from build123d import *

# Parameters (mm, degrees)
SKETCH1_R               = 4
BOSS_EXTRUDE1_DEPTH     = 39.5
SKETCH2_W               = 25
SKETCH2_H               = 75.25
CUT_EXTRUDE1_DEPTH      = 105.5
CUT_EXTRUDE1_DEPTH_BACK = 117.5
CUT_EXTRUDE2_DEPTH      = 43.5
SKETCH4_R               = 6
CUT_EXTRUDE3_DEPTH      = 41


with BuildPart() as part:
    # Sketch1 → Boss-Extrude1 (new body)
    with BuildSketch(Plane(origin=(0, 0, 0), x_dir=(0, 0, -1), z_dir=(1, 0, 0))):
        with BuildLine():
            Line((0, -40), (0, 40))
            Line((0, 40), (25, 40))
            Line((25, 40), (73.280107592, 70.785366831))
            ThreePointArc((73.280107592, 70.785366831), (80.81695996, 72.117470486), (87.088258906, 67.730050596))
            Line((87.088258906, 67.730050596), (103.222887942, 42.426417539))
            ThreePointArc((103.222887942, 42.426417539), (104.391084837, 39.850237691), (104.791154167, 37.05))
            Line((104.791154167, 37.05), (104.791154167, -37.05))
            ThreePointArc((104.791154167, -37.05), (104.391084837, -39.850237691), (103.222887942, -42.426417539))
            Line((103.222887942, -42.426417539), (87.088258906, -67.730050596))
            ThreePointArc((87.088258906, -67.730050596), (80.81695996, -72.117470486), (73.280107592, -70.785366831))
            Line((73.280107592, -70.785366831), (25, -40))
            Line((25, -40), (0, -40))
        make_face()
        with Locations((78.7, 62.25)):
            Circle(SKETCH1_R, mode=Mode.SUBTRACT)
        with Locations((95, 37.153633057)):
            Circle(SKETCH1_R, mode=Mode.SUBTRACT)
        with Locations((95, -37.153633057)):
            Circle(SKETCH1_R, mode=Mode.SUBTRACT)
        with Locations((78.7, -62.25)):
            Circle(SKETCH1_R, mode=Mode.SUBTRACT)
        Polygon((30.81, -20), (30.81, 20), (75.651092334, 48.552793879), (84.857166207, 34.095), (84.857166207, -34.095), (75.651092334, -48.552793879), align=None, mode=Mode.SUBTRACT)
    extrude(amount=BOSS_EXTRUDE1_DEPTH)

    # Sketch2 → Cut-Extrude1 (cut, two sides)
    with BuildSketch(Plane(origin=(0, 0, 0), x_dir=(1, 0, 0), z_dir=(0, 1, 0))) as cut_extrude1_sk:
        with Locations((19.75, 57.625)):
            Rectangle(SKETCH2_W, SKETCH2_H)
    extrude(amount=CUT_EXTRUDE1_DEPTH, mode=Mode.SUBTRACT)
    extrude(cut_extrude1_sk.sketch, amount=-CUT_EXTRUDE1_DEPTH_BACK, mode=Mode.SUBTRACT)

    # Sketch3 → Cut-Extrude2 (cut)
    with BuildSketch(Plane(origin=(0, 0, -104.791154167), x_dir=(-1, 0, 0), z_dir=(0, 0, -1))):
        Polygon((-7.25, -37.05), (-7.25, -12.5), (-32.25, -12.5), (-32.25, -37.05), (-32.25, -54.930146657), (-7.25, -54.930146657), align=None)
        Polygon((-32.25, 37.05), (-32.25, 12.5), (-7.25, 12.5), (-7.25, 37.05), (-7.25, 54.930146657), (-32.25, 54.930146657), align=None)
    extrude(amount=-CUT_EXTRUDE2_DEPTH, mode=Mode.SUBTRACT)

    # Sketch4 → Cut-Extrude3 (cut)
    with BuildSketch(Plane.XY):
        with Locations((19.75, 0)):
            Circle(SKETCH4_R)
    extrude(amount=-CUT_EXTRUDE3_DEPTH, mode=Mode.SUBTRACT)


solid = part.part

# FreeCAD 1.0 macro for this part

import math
import FreeCAD as App
import Part
import Sketcher
from FreeCAD import Vector

doc = App.newDocument("Part")
params = doc.addObject("Spreadsheet::Sheet", "Params")
for row, (alias, value) in enumerate([
    ("sketch1_diameter", "8 mm"),
    ("sketch1_radius", "10 mm"),
    ("sketch1_width", "80 mm"),
    ("sketch1_width2", "40 mm"),
    ("sketch1_height", "25 mm"),
    ("pad1_length", "39.5 mm"),
    ("sketch2_width", "25 mm"),
    ("sketch2_height", "75.25 mm"),
    ("sketch3_width", "25 mm"),
    ("pocket2_length", "43.5 mm"),
    ("sketch4_diameter", "12 mm"),
    ("pocket3_length", "41 mm"),
], start=1):
    params.set(f"A{row}", alias)
    params.set(f"B{row}", "=" + value)
    params.setAlias(f"B{row}", alias)

body = doc.addObject("PartDesign::Body", "Body")

# Sketch on YZ plane
sketch1 = doc.addObject("Sketcher::SketchObject", "Sketch")
body.addObject(sketch1)
sketch1.AttachmentSupport = (doc.YZ_Plane, [""])
sketch1.MapMode = "FlatFace"
sketch1.addGeometry(Part.LineSegment(Vector(40, 0, 0), Vector(-40, 0, 0)), False)
sketch1.addGeometry(Part.LineSegment(Vector(-40, 0, 0), Vector(-40, -25, 0)), False)
sketch1.addGeometry(Part.LineSegment(Vector(-40, -25, 0), Vector(-70.8, -73.3, 0)), False)
sketch1.addGeometry(Part.ArcOfCircle(Part.Circle(Vector(-62.4, -78.7, 0), Vector(0, 0, 1), 10), math.radians(147), math.radians(237)), False)
sketch1.addGeometry(Part.LineSegment(Vector(-67.7, -87.1, 0), Vector(-42.4, -103.2, 0)), False)
sketch1.addGeometry(Part.ArcOfCircle(Part.Circle(Vector(-37, -94.8, 0), Vector(0, 0, 1), 10), math.radians(-123), math.radians(-90)), False)
sketch1.addGeometry(Part.LineSegment(Vector(-37, -104.8, 0), Vector(37, -104.8, 0)), False)
sketch1.addGeometry(Part.ArcOfCircle(Part.Circle(Vector(37, -94.8, 0), Vector(0, 0, 1), 10), math.radians(-90), math.radians(-57)), False)
sketch1.addGeometry(Part.LineSegment(Vector(42.4, -103.2, 0), Vector(67.7, -87.1, 0)), False)
sketch1.addGeometry(Part.ArcOfCircle(Part.Circle(Vector(62.4, -78.7, 0), Vector(0, 0, 1), 10), math.radians(-57), math.radians(33)), False)
sketch1.addGeometry(Part.LineSegment(Vector(70.8, -73.3, 0), Vector(40, -25, 0)), False)
sketch1.addGeometry(Part.LineSegment(Vector(40, -25, 0), Vector(40, 0, 0)), False)
sketch1.addGeometry(Part.Circle(Vector(-37.2, -95, 0), Vector(0, 0, 1), 4), False)
sketch1.addGeometry(Part.Circle(Vector(-62.2, -78.7, 0), Vector(0, 0, 1), 4), False)
sketch1.addGeometry(Part.Circle(Vector(37.2, -95, 0), Vector(0, 0, 1), 4), False)
sketch1.addGeometry(Part.Circle(Vector(62.2, -78.7, 0), Vector(0, 0, 1), 4), False)
sketch1.addGeometry(Part.LineSegment(Vector(-20, -30.8, 0), Vector(20, -30.8, 0)), False)
sketch1.addGeometry(Part.LineSegment(Vector(20, -30.8, 0), Vector(48.6, -75.7, 0)), False)
sketch1.addGeometry(Part.LineSegment(Vector(48.6, -75.7, 0), Vector(34.1, -84.9, 0)), False)
sketch1.addGeometry(Part.LineSegment(Vector(34.1, -84.9, 0), Vector(-34.1, -84.9, 0)), False)
sketch1.addGeometry(Part.LineSegment(Vector(-34.1, -84.9, 0), Vector(-48.6, -75.7, 0)), False)
sketch1.addGeometry(Part.LineSegment(Vector(-48.6, -75.7, 0), Vector(-20, -30.8, 0)), False)
sketch1.addConstraint(Sketcher.Constraint("Coincident", 0, 2, 1, 1))
sketch1.addConstraint(Sketcher.Constraint("Coincident", 1, 2, 2, 1))
sketch1.addConstraint(Sketcher.Constraint("Tangent", 2, 2, 3, 1))
sketch1.addConstraint(Sketcher.Constraint("Tangent", 3, 2, 4, 1))
sketch1.addConstraint(Sketcher.Constraint("Tangent", 4, 2, 5, 1))
sketch1.addConstraint(Sketcher.Constraint("Tangent", 5, 2, 6, 1))
sketch1.addConstraint(Sketcher.Constraint("Tangent", 6, 2, 7, 1))
sketch1.addConstraint(Sketcher.Constraint("Tangent", 7, 2, 8, 1))
sketch1.addConstraint(Sketcher.Constraint("Tangent", 8, 2, 9, 1))
sketch1.addConstraint(Sketcher.Constraint("Tangent", 9, 2, 10, 1))
sketch1.addConstraint(Sketcher.Constraint("Coincident", 10, 2, 11, 1))
sketch1.addConstraint(Sketcher.Constraint("Coincident", 11, 2, 0, 1))
sketch1.addConstraint(Sketcher.Constraint("Coincident", 16, 2, 17, 1))
sketch1.addConstraint(Sketcher.Constraint("Coincident", 17, 2, 18, 1))
sketch1.addConstraint(Sketcher.Constraint("Coincident", 18, 2, 19, 1))
sketch1.addConstraint(Sketcher.Constraint("Coincident", 19, 2, 20, 1))
sketch1.addConstraint(Sketcher.Constraint("Coincident", 20, 2, 21, 1))
sketch1.addConstraint(Sketcher.Constraint("Coincident", 21, 2, 16, 1))
sketch1.addConstraint(Sketcher.Constraint("Horizontal", 0))
sketch1.addConstraint(Sketcher.Constraint("Vertical", 1))
sketch1.addConstraint(Sketcher.Constraint("Horizontal", 6))
sketch1.addConstraint(Sketcher.Constraint("Vertical", 11))
sketch1.addConstraint(Sketcher.Constraint("Horizontal", 16))
sketch1.addConstraint(Sketcher.Constraint("Horizontal", 19))
sketch1.addConstraint(Sketcher.Constraint("Equal", 3, 5))
sketch1.addConstraint(Sketcher.Constraint("Equal", 5, 7))
sketch1.addConstraint(Sketcher.Constraint("Equal", 7, 9))
sketch1.addConstraint(Sketcher.Constraint("Equal", 12, 13))
sketch1.addConstraint(Sketcher.Constraint("Equal", 13, 14))
sketch1.addConstraint(Sketcher.Constraint("Equal", 14, 15))
sketch1.addConstraint(Sketcher.Constraint("Symmetric", 0, 2, 11, 2, -1, 1))
sketch1.addConstraint(Sketcher.Constraint("Symmetric", 3, 3, 9, 3, -2))
sketch1.addConstraint(Sketcher.Constraint("Symmetric", 12, 3, 14, 3, -2))
sketch1.addConstraint(Sketcher.Constraint("Symmetric", 13, 3, 15, 3, -2))
sketch1.addConstraint(Sketcher.Constraint("Symmetric", 17, 2, 20, 2, -2))
sketch1.addConstraint(Sketcher.Constraint("Perpendicular", 2, 4))
sketch1.addConstraint(Sketcher.Constraint("Perpendicular", 8, 10))
sketch1.addConstraint(Sketcher.Constraint("Perpendicular", 17, 18))
sketch1.addConstraint(Sketcher.Constraint("Perpendicular", 20, 21))
sketch1.addConstraint(Sketcher.Constraint("Horizontal", 4, 2, 7, 2))
sketch1.addConstraint(Sketcher.Constraint("Equal", 18, 20))
sketch1.addConstraint(Sketcher.Constraint("Diameter", 12, 8.0))
sketch1.addConstraint(Sketcher.Constraint("Radius", 3, 10.0))
sketch1.addConstraint(Sketcher.Constraint("DistanceX", 0, 2, 0, 1, 80.0))
sketch1.addConstraint(Sketcher.Constraint("DistanceX", 16, 1, 16, 2, 40.0))
sketch1.addConstraint(Sketcher.Constraint("DistanceY", 1, 2, 1, 1, 25.0))
sketch1.addConstraint(Sketcher.Constraint("DistanceX", 6, 1, 6, 2, 74.1))
sketch1.addConstraint(Sketcher.Constraint("DistanceY", 12, 3, -1, 1, 95.0))
sketch1.addConstraint(Sketcher.Constraint("DistanceX", 19, 2, 19, 1, 68.19))
sketch1.addConstraint(Sketcher.Constraint("DistanceY", 13, 3, -1, 1, 78.7))
sketch1.addConstraint(Sketcher.Constraint("DistanceX", 3, 3, 12, 3, 25.2))
sketch1.addConstraint(Sketcher.Constraint("DistanceX", 13, 3, 5, 3, 25.2))
sketch1.addConstraint(Sketcher.Constraint("Distance", 2, 57.26))
sketch1.addConstraint(Sketcher.Constraint("Distance", 4, 30.01))
sketch1.addConstraint(Sketcher.Constraint("Distance", 17, 53.16))
sketch1.addConstraint(Sketcher.Constraint("Distance", 18, 17.14))
sketch1.addConstraint(Sketcher.Constraint("DistanceY", 16, 2, -1, 1, 30.81))
sketch1.setExpression("Constraints[41]", "Params.sketch1_diameter")
sketch1.setExpression("Constraints[42]", "Params.sketch1_radius")
sketch1.setExpression("Constraints[43]", "Params.sketch1_width")
sketch1.setExpression("Constraints[44]", "Params.sketch1_width2")
sketch1.setExpression("Constraints[45]", "Params.sketch1_height")
pad1 = doc.addObject("PartDesign::Pad", "Pad")
body.addObject(pad1)
pad1.Profile = sketch1
pad1.setExpression("Length", "Params.pad1_length")

# Sketch on XZ plane
sketch2 = doc.addObject("Sketcher::SketchObject", "Sketch001")
body.addObject(sketch2)
sketch2.AttachmentSupport = (doc.XZ_Plane, [""])
sketch2.MapMode = "FlatFace"
sketch2.addGeometry(Part.LineSegment(Vector(7, -95, 0), Vector(7, -20, 0)), False)
sketch2.addGeometry(Part.LineSegment(Vector(7, -20, 0), Vector(32, -20, 0)), False)
sketch2.addGeometry(Part.LineSegment(Vector(32, -20, 0), Vector(32, -95, 0)), False)
sketch2.addGeometry(Part.LineSegment(Vector(32, -95, 0), Vector(7, -95, 0)), False)
sketch2.addConstraint(Sketcher.Constraint("Coincident", 0, 2, 1, 1))
sketch2.addConstraint(Sketcher.Constraint("Coincident", 1, 2, 2, 1))
sketch2.addConstraint(Sketcher.Constraint("Coincident", 2, 2, 3, 1))
sketch2.addConstraint(Sketcher.Constraint("Coincident", 3, 2, 0, 1))
sketch2.addConstraint(Sketcher.Constraint("Vertical", 0))
sketch2.addConstraint(Sketcher.Constraint("Horizontal", 1))
sketch2.addConstraint(Sketcher.Constraint("Vertical", 2))
sketch2.addConstraint(Sketcher.Constraint("Horizontal", 3))
sketch2.addConstraint(Sketcher.Constraint("DistanceX", 1, 1, 1, 2, 25.0))
sketch2.addConstraint(Sketcher.Constraint("DistanceY", 0, 2, -1, 1, 20.0))
sketch2.addConstraint(Sketcher.Constraint("DistanceY", 0, 1, 0, 2, 75.25))
sketch2.addConstraint(Sketcher.Constraint("DistanceX", -1, 1, 0, 2, 7.25))
sketch2.setExpression("Constraints[8]", "Params.sketch2_width")
sketch2.setExpression("Constraints[10]", "Params.sketch2_height")
pocket1 = doc.addObject("PartDesign::Pocket", "Pocket")
body.addObject(pocket1)
pocket1.Profile = sketch2
pocket1.Type = "ThroughAll"
pocket1.Midplane = True

# Sketch on XY plane
sketch3 = doc.addObject("Sketcher::SketchObject", "Sketch002")
body.addObject(sketch3)
sketch3.AttachmentSupport = (doc.XY_Plane, [""])
sketch3.MapMode = "FlatFace"
sketch3.AttachmentOffset = App.Placement(Vector(0, 0, -104.791154), App.Rotation())
sketch3.addGeometry(Part.LineSegment(Vector(7, -12, 0), Vector(32, -12, 0)), False)
sketch3.addGeometry(Part.LineSegment(Vector(32, -12, 0), Vector(32, -55, 0)), False)
sketch3.addGeometry(Part.LineSegment(Vector(32, -55, 0), Vector(7, -55, 0)), False)
sketch3.addGeometry(Part.LineSegment(Vector(7, -55, 0), Vector(7, -12, 0)), False)
sketch3.addGeometry(Part.LineSegment(Vector(32, 12, 0), Vector(7, 12, 0)), False)
sketch3.addGeometry(Part.LineSegment(Vector(7, 12, 0), Vector(7, 55, 0)), False)
sketch3.addGeometry(Part.LineSegment(Vector(7, 55, 0), Vector(32, 55, 0)), False)
sketch3.addGeometry(Part.LineSegment(Vector(32, 55, 0), Vector(32, 12, 0)), False)
sketch3.addConstraint(Sketcher.Constraint("Coincident", 0, 2, 1, 1))
sketch3.addConstraint(Sketcher.Constraint("Coincident", 1, 2, 2, 1))
sketch3.addConstraint(Sketcher.Constraint("Coincident", 2, 2, 3, 1))
sketch3.addConstraint(Sketcher.Constraint("Coincident", 3, 2, 0, 1))
sketch3.addConstraint(Sketcher.Constraint("Coincident", 4, 2, 5, 1))
sketch3.addConstraint(Sketcher.Constraint("Coincident", 5, 2, 6, 1))
sketch3.addConstraint(Sketcher.Constraint("Coincident", 6, 2, 7, 1))
sketch3.addConstraint(Sketcher.Constraint("Coincident", 7, 2, 4, 1))
sketch3.addConstraint(Sketcher.Constraint("Horizontal", 0))
sketch3.addConstraint(Sketcher.Constraint("Vertical", 1))
sketch3.addConstraint(Sketcher.Constraint("Horizontal", 2))
sketch3.addConstraint(Sketcher.Constraint("Vertical", 3))
sketch3.addConstraint(Sketcher.Constraint("Horizontal", 4))
sketch3.addConstraint(Sketcher.Constraint("Vertical", 5))
sketch3.addConstraint(Sketcher.Constraint("Horizontal", 6))
sketch3.addConstraint(Sketcher.Constraint("Vertical", 7))
sketch3.addConstraint(Sketcher.Constraint("Symmetric", 3, 2, 4, 2, -1))
sketch3.addConstraint(Sketcher.Constraint("Symmetric", 1, 2, 6, 2, -1))
sketch3.addConstraint(Sketcher.Constraint("DistanceX", 0, 1, 0, 2, 25.0))
sketch3.addConstraint(Sketcher.Constraint("DistanceY", 3, 2, 4, 2, 25.0))
sketch3.addConstraint(Sketcher.Constraint("DistanceX", -1, 1, 0, 2, 32.25))
sketch3.addConstraint(Sketcher.Constraint("DistanceY", 1, 2, 1, 1, 42.430147))
sketch3.setExpression("Constraints[18]", "Params.sketch3_width")
pocket2 = doc.addObject("PartDesign::Pocket", "Pocket001")
body.addObject(pocket2)
pocket2.Profile = sketch3
pocket2.setExpression("Length", "Params.pocket2_length")
pocket2.Reversed = True

# Sketch on XY plane
sketch4 = doc.addObject("Sketcher::SketchObject", "Sketch003")
body.addObject(sketch4)
sketch4.AttachmentSupport = (doc.XY_Plane, [""])
sketch4.MapMode = "FlatFace"
sketch4.addGeometry(Part.Circle(Vector(20, 0, 0), Vector(0, 0, 1), 6), False)
sketch4.addConstraint(Sketcher.Constraint("PointOnObject", 0, 3, -1))
sketch4.addConstraint(Sketcher.Constraint("Diameter", 0, 12.0))
sketch4.addConstraint(Sketcher.Constraint("DistanceX", -1, 1, 0, 3, 19.75))
sketch4.setExpression("Constraints[1]", "Params.sketch4_diameter")
pocket3 = doc.addObject("PartDesign::Pocket", "Pocket002")
body.addObject(pocket3)
pocket3.Profile = sketch4
pocket3.setExpression("Length", "Params.pocket3_length")

doc.recompute()
